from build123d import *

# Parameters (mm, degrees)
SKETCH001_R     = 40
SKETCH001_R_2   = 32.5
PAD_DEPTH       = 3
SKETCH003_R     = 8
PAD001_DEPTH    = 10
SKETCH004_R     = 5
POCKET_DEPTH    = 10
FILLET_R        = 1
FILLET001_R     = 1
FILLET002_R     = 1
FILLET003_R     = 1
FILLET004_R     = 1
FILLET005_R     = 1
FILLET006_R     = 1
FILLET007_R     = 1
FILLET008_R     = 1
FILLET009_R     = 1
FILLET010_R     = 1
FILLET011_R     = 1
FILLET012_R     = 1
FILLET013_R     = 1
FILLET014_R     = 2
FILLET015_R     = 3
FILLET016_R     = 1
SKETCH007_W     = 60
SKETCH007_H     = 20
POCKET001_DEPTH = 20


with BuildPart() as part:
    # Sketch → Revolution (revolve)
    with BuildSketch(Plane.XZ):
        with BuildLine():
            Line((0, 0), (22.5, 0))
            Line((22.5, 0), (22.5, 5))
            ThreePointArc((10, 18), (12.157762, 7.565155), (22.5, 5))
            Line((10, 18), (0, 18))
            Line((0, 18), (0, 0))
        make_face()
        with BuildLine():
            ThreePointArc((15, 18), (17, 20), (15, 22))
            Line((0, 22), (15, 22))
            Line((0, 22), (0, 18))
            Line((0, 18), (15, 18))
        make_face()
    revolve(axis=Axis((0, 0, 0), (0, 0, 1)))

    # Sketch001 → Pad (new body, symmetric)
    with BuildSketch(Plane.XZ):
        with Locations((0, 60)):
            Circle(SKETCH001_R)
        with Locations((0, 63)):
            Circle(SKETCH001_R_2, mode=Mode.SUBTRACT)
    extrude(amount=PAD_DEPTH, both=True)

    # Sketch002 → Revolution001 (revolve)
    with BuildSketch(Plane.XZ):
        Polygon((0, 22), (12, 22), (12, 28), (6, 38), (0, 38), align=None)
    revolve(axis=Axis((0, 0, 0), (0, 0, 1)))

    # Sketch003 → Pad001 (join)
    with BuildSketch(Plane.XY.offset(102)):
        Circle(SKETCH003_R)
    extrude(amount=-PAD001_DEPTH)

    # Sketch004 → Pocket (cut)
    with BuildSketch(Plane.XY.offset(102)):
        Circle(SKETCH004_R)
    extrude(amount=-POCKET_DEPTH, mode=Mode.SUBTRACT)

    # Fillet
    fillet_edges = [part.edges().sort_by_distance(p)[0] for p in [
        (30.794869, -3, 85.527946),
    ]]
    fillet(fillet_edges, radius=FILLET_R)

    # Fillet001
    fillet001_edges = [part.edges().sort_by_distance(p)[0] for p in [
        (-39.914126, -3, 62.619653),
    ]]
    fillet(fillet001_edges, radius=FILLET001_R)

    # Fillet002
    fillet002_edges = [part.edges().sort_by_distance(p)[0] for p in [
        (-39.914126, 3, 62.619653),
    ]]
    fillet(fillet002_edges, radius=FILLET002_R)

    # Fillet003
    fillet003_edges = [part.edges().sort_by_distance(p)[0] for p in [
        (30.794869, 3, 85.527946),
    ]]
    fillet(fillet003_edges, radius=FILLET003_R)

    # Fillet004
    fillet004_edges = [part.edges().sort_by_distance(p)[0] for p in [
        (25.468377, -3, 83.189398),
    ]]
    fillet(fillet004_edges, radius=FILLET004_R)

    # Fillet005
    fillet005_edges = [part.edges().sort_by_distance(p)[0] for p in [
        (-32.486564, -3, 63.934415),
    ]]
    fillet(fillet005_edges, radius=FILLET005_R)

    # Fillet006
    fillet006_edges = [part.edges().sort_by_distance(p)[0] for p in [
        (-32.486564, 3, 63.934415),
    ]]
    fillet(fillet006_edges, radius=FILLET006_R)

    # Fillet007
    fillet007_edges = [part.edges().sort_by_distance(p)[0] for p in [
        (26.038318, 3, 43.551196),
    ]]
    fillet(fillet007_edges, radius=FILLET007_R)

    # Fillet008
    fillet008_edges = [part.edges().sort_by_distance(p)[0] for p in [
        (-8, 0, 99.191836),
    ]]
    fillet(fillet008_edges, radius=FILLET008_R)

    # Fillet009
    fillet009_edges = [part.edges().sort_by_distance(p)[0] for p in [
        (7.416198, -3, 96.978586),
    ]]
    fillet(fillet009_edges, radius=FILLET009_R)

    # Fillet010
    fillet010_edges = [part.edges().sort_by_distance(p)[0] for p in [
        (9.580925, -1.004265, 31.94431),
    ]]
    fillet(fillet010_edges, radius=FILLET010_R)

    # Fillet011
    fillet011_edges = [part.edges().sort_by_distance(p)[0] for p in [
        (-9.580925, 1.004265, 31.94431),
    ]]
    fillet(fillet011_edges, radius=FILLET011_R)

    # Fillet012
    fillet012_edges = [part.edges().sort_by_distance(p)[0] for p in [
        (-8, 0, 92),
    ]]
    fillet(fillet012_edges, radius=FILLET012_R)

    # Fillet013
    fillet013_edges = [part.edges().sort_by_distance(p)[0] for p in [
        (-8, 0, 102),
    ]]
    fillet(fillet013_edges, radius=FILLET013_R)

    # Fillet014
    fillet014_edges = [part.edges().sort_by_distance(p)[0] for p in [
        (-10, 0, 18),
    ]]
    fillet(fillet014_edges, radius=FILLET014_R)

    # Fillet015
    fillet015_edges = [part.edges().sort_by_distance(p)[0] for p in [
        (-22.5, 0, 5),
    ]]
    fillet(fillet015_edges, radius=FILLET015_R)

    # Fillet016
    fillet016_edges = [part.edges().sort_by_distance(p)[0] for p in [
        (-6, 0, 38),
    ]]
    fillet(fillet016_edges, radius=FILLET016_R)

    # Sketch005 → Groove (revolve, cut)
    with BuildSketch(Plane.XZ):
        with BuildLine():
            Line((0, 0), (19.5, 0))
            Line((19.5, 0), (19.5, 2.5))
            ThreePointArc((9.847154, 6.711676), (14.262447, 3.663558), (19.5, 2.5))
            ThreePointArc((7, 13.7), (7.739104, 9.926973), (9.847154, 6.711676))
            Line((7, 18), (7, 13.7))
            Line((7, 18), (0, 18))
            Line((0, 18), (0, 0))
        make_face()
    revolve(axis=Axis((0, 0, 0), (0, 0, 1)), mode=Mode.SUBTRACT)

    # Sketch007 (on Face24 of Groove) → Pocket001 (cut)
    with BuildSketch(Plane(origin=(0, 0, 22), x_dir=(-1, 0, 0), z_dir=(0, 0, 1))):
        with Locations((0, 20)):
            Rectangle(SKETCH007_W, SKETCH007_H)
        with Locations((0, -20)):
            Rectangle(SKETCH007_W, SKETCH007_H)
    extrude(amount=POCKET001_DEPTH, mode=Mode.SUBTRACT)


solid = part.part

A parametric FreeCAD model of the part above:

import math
import FreeCAD as App
import Part
import Sketcher
from FreeCAD import Vector
Q = App.Units.Quantity


def edges_at(feature, points):
    """Names of the edges that pass closest to the given points."""
    edges = feature.Shape.Edges
    near = lambda p: min(range(len(edges)), key=lambda i: edges[i].distToShape(Part.Vertex(*p))[0])
    return sorted({f"Edge{near(p) + 1}" for p in points})


def add_polygon(sketch, points):
    """Adds a closed chain of lines whose ends are joined by coincident constraints."""
    first, n = sketch.GeometryCount, len(points)
    for a, b in zip(points, points[1:] + points[:1]):
        sketch.addGeometry(Part.LineSegment(App.Vector(*a, 0), App.Vector(*b, 0)), False)
    for i in range(n):
        sketch.addConstraint(Sketcher.Constraint("Coincident", first + i, 2, first + (i + 1) % n, 1))

doc = App.newDocument("Part")
body = doc.addObject("PartDesign::Body", "Body")

sketch1 = body.newObject("Sketcher::SketchObject", "Sketch")
sketch1.AttachmentSupport = (doc.getObject("XZ_Plane"), [""])
sketch1.MapMode = "FlatFace"
sketch1.addGeometry(Part.LineSegment(Vector(0, 0, 0), Vector(22.5, 0, 0)), False)
sketch1.addGeometry(Part.LineSegment(Vector(22.5, 0, 0), Vector(22.5, 5, 0)), False)
sketch1.addGeometry(Part.ArcOfCircle(Part.Circle(Vector(19.4, 14.5, 0), Vector(0, 0, 1), 10), math.radians(159), math.radians(288)), False)
sketch1.addGeometry(Part.LineSegment(Vector(10, 18, 0), Vector(15, 18, 0)), False)
sketch1.addGeometry(Part.ArcOfCircle(Part.Circle(Vector(15, 20, 0), Vector(0, 0, 1), 2), math.radians(-90), math.radians(90)), False)
sketch1.addGeometry(Part.LineSegment(Vector(15, 22, 0), Vector(0, 22, 0)), False)
sketch1.addGeometry(Part.LineSegment(Vector(0, 22, 0), Vector(0, 0, 0)), False)
sketch1.addConstraint(Sketcher.Constraint("Coincident", 0, 2, 1, 1))
sketch1.addConstraint(Sketcher.Constraint("Coincident", 1, 2, 2, 2))
sketch1.addConstraint(Sketcher.Constraint("Coincident", 2, 1, 3, 1))
sketch1.addConstraint(Sketcher.Constraint("Tangent", 3, 2, 4, 1))
sketch1.addConstraint(Sketcher.Constraint("Tangent", 4, 2, 5, 1))
sketch1.addConstraint(Sketcher.Constraint("Coincident", 5, 2, 6, 1))
sketch1.addConstraint(Sketcher.Constraint("Coincident", 6, 2, 0, 1))
sketch1.addConstraint(Sketcher.Constraint("Horizontal", 0))
sketch1.addConstraint(Sketcher.Constraint("Vertical", 1))
sketch1.addConstraint(Sketcher.Constraint("Horizontal", 3))
sketch1.addConstraint(Sketcher.Constraint("Horizontal", 5))
sketch1.addConstraint(Sketcher.Constraint("Vertical", 6))
sketch1.addConstraint(Sketcher.Constraint("Coincident", 6, 2, -1, 1))
sketch1.addConstraint(Sketcher.Constraint("Equal", 3, 1))
sketch1.addConstraint(Sketcher.Constraint("Radius", 2, Q("10 mm")))
sketch1.addConstraint(Sketcher.Constraint("Radius", 4, Q("2 mm")))
sketch1.addConstraint(Sketcher.Constraint("DistanceX", 3, 1, 3, 2, Q("5 mm")))
sketch1.addConstraint(Sketcher.Constraint("DistanceX", 5, 2, 5, 1, Q("15 mm")))
sketch1.addConstraint(Sketcher.Constraint("DistanceY", 6, 2, 6, 1, Q("22 mm")))
sketch1.addConstraint(Sketcher.Constraint("DistanceX", 0, 1, 0, 2, Q("22.5 mm")))
revolution = body.newObject("PartDesign::Revolution", "Revolution")
revolution.Profile = sketch1
revolution.ReferenceAxis = (sketch1, ["V_Axis"])
revolution.Angle = 360

sketch2 = body.newObject("Sketcher::SketchObject", "Sketch001")
sketch2.AttachmentSupport = (doc.getObject("XZ_Plane"), [""])
sketch2.MapMode = "FlatFace"
sketch2.addGeometry(Part.Circle(Vector(0, 60, 0), Vector(0, 0, 1), 40), False)
sketch2.addGeometry(Part.Circle(Vector(0, 63, 0), Vector(0, 0, 1), 32), False)
sketch2.addConstraint(Sketcher.Constraint("PointOnObject", 0, 3, -2))
sketch2.addConstraint(Sketcher.Constraint("PointOnObject", 1, 3, -2))
sketch2.addConstraint(Sketcher.Constraint("Diameter", 0, Q("80 mm")))
sketch2.addConstraint(Sketcher.Constraint("Diameter", 1, Q("65 mm")))
sketch2.addConstraint(Sketcher.Constraint("DistanceY", -1, 1, 0, 3, Q("60 mm")))
sketch2.addConstraint(Sketcher.Constraint("DistanceY", -1, 1, 1, 3, Q("63 mm")))
pad1 = body.newObject("PartDesign::Pad", "Pad")
pad1.Profile = sketch2
pad1.Length = 6
pad1.Midplane = True

sketch3 = body.newObject("Sketcher::SketchObject", "Sketch002")
sketch3.AttachmentSupport = (doc.getObject("XZ_Plane"), [""])
sketch3.MapMode = "FlatFace"
add_polygon(sketch3, [(0, 22), (12, 22), (12, 28), (6, 38), (0, 38)])
sketch3.addConstraint(Sketcher.Constraint("Horizontal", 0))
sketch3.addConstraint(Sketcher.Constraint("Vertical", 1))
sketch3.addConstraint(Sketcher.Constraint("Horizontal", 3))
sketch3.addConstraint(Sketcher.Constraint("Vertical", 4))
sketch3.addConstraint(Sketcher.Constraint("PointOnObject", 3, 2, -2))
sketch3.addConstraint(Sketcher.Constraint("Equal", 3, 1))
sketch3.addConstraint(Sketcher.Constraint("DistanceX", 0, 1, 0, 2, Q("12 mm")))
sketch3.addConstraint(Sketcher.Constraint("DistanceX", 3, 2, 3, 1, Q("6 mm")))
sketch3.addConstraint(Sketcher.Constraint("DistanceY", 4, 2, 4, 1, Q("16 mm")))
sketch3.addConstraint(Sketcher.Constraint("DistanceY", -1, 1, 0, 2, Q("22 mm")))
revolution2 = body.newObject("PartDesign::Revolution", "Revolution001")
revolution2.Profile = sketch3
revolution2.ReferenceAxis = (sketch3, ["V_Axis"])
revolution2.Angle = 360

sketch4 = body.newObject("Sketcher::SketchObject", "Sketch003")
sketch4.AttachmentSupport = (doc.getObject("XY_Plane"), [""])
sketch4.MapMode = "FlatFace"
sketch4.AttachmentOffset = App.Placement(Vector(0, 0, 102), App.Rotation())
sketch4.addGeometry(Part.Circle(Vector(0, 0, 0), Vector(0, 0, 1), 8), False)
sketch4.addConstraint(Sketcher.Constraint("Coincident", 0, 3, -1, 1))
sketch4.addConstraint(Sketcher.Constraint("Diameter", 0, Q("16 mm")))
pad2 = body.newObject("PartDesign::Pad", "Pad001")
pad2.Profile = sketch4
pad2.Length = 10
pad2.Reversed = True

sketch5 = body.newObject("Sketcher::SketchObject", "Sketch004")
sketch5.AttachmentSupport = (doc.getObject("XY_Plane"), [""])
sketch5.MapMode = "FlatFace"
sketch5.AttachmentOffset = App.Placement(Vector(0, 0, 102), App.Rotation())
sketch5.addGeometry(Part.Circle(Vector(0, 0, 0), Vector(0, 0, 1), 5), False)
sketch5.addConstraint(Sketcher.Constraint("Coincident", 0, 3, -1, 1))
sketch5.addConstraint(Sketcher.Constraint("Diameter", 0, Q("10 mm")))
pocket1 = body.newObject("PartDesign::Pocket", "Pocket")
pocket1.Profile = sketch5
pocket1.Length = 10
doc.recompute()

fillet = body.newObject("PartDesign::Fillet", "Fillet")
fillet.Base = (pocket1, edges_at(pocket1, [(39.914, -3, 62.62)]))
fillet.Radius = 1
doc.recompute()

fillet2 = body.newObject("PartDesign::Fillet", "Fillet001")
fillet2.Base = (fillet, edges_at(fillet, [(-39.914, -3, 62.62)]))
fillet2.Radius = 1
doc.recompute()

fillet3 = body.newObject("PartDesign::Fillet", "Fillet002")
fillet3.Base = (fillet2, edges_at(fillet2, [(-39.914, 3, 62.62)]))
fillet3.Radius = 1
doc.recompute()

fillet4 = body.newObject("PartDesign::Fillet", "Fillet003")
fillet4.Base = (fillet3, edges_at(fillet3, [(39.914, 3, 62.62)]))
fillet4.Radius = 1
doc.recompute()

fillet5 = body.newObject("PartDesign::Fillet", "Fillet004")
fillet5.Base = (fillet4, edges_at(fillet4, [(32.487, -3, 63.934)]))
fillet5.Radius = 1
doc.recompute()

fillet6 = body.newObject("PartDesign::Fillet", "Fillet005")
fillet6.Base = (fillet5, edges_at(fillet5, [(-32.487, -3, 63.934)]))
fillet6.Radius = 1
doc.recompute()

fillet7 = body.newObject("PartDesign::Fillet", "Fillet006")
fillet7.Base = (fillet6, edges_at(fillet6, [(-32.487, 3, 63.934)]))
fillet7.Radius = 1
doc.recompute()

fillet8 = body.newObject("PartDesign::Fillet", "Fillet007")
fillet8.Base = (fillet7, edges_at(fillet7, [(32.487, 3, 63.934)]))
fillet8.Radius = 1
doc.recompute()

fillet9 = body.newObject("PartDesign::Fillet", "Fillet008")
fillet9.Base = (fillet8, edges_at(fillet8, [(-8, 0, 99.192)]))
fillet9.Radius = 1
doc.recompute()

fillet10 = body.newObject("PartDesign::Fillet", "Fillet009")
fillet10.Base = (fillet9, edges_at(fillet9, [(7.416, -3, 96.979)]))
fillet10.Radius = 1
doc.recompute()

fillet11 = body.newObject("PartDesign::Fillet", "Fillet010")
fillet11.Base = (fillet10, edges_at(fillet10, [(9.581, -1.004, 31.944)]))
fillet11.Radius = 1
doc.recompute()

fillet12 = body.newObject("PartDesign::Fillet", "Fillet011")
fillet12.Base = (fillet11, edges_at(fillet11, [(-9.625, 0, 31.958)]))
fillet12.Radius = 1
doc.recompute()

fillet13 = body.newObject("PartDesign::Fillet", "Fillet012")
fillet13.Base = (fillet12, edges_at(fillet12, [(-8, 0, 92)]))
fillet13.Radius = 1
doc.recompute()

fillet14 = body.newObject("PartDesign::Fillet", "Fillet013")
fillet14.Base = (fillet13, edges_at(fillet13, [(-8, 0, 102)]))
fillet14.Radius = 1
doc.recompute()

fillet15 = body.newObject("PartDesign::Fillet", "Fillet014")
fillet15.Base = (fillet14, edges_at(fillet14, [(-10, 0, 18)]))
fillet15.Radius = 2
doc.recompute()

fillet16 = body.newObject("PartDesign::Fillet", "Fillet015")
fillet16.Base = (fillet15, edges_at(fillet15, [(-22.5, 0, 5)]))
fillet16.Radius = 3
doc.recompute()

fillet17 = body.newObject("PartDesign::Fillet", "Fillet016")
fillet17.Base = (fillet16, edges_at(fillet16, [(-6, 0, 38)]))
fillet17.Radius = 1

sketch6 = body.newObject("Sketcher::SketchObject", "Sketch005")
sketch6.AttachmentSupport = (doc.getObject("XZ_Plane"), [""])
sketch6.MapMode = "FlatFace"
sketch6.addGeometry(Part.LineSegment(Vector(0, 0, 0), Vector(19.5, 0, 0)), False)
sketch6.addGeometry(Part.LineSegment(Vector(19.5, 0, 0), Vector(19.5, 2.5, 0)), False)
sketch6.addGeometry(Part.ArcOfCircle(Part.Circle(Vector(19.861136, 16.495335, 0), Vector(0, 0, 1), 13.999994), math.radians(-135.666541), math.radians(-91.478135)), False)
sketch6.addGeometry(Part.ArcOfCircle(Part.Circle(Vector(17.000004, 13.70001, 0), Vector(0, 0, 1), 10.000004), math.radians(-179.99994), math.radians(-135.666538)), False)
sketch6.addGeometry(Part.LineSegment(Vector(7, 13.7, 0), Vector(7, 18, 0)), False)
sketch6.addGeometry(Part.LineSegment(Vector(7, 18, 0), Vector(0, 18, 0)), False)
sketch6.addGeometry(Part.LineSegment(Vector(0, 18, 0), Vector(0, 0, 0)), False)
sketch6.addConstraint(Sketcher.Constraint("Coincident", 0, 2, 1, 1))
sketch6.addConstraint(Sketcher.Constraint("Coincident", 1, 2, 2, 2))
sketch6.addConstraint(Sketcher.Constraint("Coincident", 2, 1, 3, 2))
sketch6.addConstraint(Sketcher.Constraint("Coincident", 3, 1, 4, 1))
sketch6.addConstraint(Sketcher.Constraint("Coincident", 4, 2, 5, 1))
sketch6.addConstraint(Sketcher.Constraint("Coincident", 5, 2, 6, 1))
sketch6.addConstraint(Sketcher.Constraint("Coincident", 6, 2, 0, 1))
sketch6.addConstraint(Sketcher.Constraint("Horizontal", 0))
sketch6.addConstraint(Sketcher.Constraint("Vertical", 1))
sketch6.addConstraint(Sketcher.Constraint("Vertical", 4))
sketch6.addConstraint(Sketcher.Constraint("Horizontal", 5))
sketch6.addConstraint(Sketcher.Constraint("Vertical", 6))
sketch6.addConstraint(Sketcher.Constraint("Coincident", 6, 2, -1, 1))
sketch6.addConstraint(Sketcher.Constraint("DistanceX", 5, 2, 5, 1, Q("7 mm")))
sketch6.addConstraint(Sketcher.Constraint("DistanceY", 6, 2, 6, 1, Q("18 mm")))
sketch6.addConstraint(Sketcher.Constraint("DistanceX", 0, 1, 0, 2, Q("19.5 mm")))
sketch6.addConstraint(Sketcher.Constraint("DistanceY", 1, 1, 1, 2, Q("2.5 mm")))
sketch6.addConstraint(Sketcher.Constraint("DistanceY", 4, 1, 4, 2, Q("4.3 mm")))
sketch6.addConstraint(Sketcher.Constraint("Radius", 2, Q("13.999994 mm")))
sketch6.addConstraint(Sketcher.Constraint("Radius", 3, Q("10.000004 mm")))
sketch6.addConstraint(Sketcher.Constraint("DistanceY", -1, 1, 3, 3, Q("13.70001 mm")))
sketch6.addConstraint(Sketcher.Constraint("DistanceX", 2, 1, 3, 3, Q("7.15285 mm")))
groove = body.newObject("PartDesign::Groove", "Groove")
groove.Profile = sketch6
groove.ReferenceAxis = (sketch6, ["V_Axis"])
groove.Angle = 360

sketch7 = body.newObject("Sketcher::SketchObject", "Sketch006")
sketch7.AttachmentSupport = (doc.getObject("XY_Plane"), [""])
sketch7.MapMode = "FlatFace"
sketch7.AttachmentOffset = App.Placement(Vector(0, 0, 22), App.Rotation())
add_polygon(sketch7, [(30, -30), (30, -10), (-30, -10), (-30, -30)])
add_polygon(sketch7, [(30, 10), (30, 30), (-30, 30), (-30, 10)])
sketch7.addConstraint(Sketcher.Constraint("Vertical", 0))
sketch7.addConstraint(Sketcher.Constraint("Horizontal", 1))
sketch7.addConstraint(Sketcher.Constraint("Vertical", 2))
sketch7.addConstraint(Sketcher.Constraint("Horizontal", 3))
sketch7.addConstraint(Sketcher.Constraint("Vertical", 4))
sketch7.addConstraint(Sketcher.Constraint("Horizontal", 5))
sketch7.addConstraint(Sketcher.Constraint("Vertical", 6))
sketch7.addConstraint(Sketcher.Constraint("Horizontal", 7))
sketch7.addConstraint(Sketcher.Constraint("Symmetric", 2, 2, 4, 2, -1, 1))
sketch7.addConstraint(Sketcher.Constraint("Symmetric", 0, 2, 6, 2, -1, 1))
sketch7.addConstraint(Sketcher.Constraint("Vertical", 3, 2, 4, 2))
sketch7.addConstraint(Sketcher.Constraint("DistanceX", 1, 2, 1, 1, Q("60 mm")))
sketch7.addConstraint(Sketcher.Constraint("DistanceY", 0, 1, 0, 2, Q("20 mm")))
sketch7.addConstraint(Sketcher.Constraint("DistanceY", 0, 2, -1, 1, Q("10 mm")))
pocket2 = body.newObject("PartDesign::Pocket", "Pocket001")
pocket2.Profile = sketch7
pocket2.Length = 20
pocket2.Reversed = True

doc.recompute()
